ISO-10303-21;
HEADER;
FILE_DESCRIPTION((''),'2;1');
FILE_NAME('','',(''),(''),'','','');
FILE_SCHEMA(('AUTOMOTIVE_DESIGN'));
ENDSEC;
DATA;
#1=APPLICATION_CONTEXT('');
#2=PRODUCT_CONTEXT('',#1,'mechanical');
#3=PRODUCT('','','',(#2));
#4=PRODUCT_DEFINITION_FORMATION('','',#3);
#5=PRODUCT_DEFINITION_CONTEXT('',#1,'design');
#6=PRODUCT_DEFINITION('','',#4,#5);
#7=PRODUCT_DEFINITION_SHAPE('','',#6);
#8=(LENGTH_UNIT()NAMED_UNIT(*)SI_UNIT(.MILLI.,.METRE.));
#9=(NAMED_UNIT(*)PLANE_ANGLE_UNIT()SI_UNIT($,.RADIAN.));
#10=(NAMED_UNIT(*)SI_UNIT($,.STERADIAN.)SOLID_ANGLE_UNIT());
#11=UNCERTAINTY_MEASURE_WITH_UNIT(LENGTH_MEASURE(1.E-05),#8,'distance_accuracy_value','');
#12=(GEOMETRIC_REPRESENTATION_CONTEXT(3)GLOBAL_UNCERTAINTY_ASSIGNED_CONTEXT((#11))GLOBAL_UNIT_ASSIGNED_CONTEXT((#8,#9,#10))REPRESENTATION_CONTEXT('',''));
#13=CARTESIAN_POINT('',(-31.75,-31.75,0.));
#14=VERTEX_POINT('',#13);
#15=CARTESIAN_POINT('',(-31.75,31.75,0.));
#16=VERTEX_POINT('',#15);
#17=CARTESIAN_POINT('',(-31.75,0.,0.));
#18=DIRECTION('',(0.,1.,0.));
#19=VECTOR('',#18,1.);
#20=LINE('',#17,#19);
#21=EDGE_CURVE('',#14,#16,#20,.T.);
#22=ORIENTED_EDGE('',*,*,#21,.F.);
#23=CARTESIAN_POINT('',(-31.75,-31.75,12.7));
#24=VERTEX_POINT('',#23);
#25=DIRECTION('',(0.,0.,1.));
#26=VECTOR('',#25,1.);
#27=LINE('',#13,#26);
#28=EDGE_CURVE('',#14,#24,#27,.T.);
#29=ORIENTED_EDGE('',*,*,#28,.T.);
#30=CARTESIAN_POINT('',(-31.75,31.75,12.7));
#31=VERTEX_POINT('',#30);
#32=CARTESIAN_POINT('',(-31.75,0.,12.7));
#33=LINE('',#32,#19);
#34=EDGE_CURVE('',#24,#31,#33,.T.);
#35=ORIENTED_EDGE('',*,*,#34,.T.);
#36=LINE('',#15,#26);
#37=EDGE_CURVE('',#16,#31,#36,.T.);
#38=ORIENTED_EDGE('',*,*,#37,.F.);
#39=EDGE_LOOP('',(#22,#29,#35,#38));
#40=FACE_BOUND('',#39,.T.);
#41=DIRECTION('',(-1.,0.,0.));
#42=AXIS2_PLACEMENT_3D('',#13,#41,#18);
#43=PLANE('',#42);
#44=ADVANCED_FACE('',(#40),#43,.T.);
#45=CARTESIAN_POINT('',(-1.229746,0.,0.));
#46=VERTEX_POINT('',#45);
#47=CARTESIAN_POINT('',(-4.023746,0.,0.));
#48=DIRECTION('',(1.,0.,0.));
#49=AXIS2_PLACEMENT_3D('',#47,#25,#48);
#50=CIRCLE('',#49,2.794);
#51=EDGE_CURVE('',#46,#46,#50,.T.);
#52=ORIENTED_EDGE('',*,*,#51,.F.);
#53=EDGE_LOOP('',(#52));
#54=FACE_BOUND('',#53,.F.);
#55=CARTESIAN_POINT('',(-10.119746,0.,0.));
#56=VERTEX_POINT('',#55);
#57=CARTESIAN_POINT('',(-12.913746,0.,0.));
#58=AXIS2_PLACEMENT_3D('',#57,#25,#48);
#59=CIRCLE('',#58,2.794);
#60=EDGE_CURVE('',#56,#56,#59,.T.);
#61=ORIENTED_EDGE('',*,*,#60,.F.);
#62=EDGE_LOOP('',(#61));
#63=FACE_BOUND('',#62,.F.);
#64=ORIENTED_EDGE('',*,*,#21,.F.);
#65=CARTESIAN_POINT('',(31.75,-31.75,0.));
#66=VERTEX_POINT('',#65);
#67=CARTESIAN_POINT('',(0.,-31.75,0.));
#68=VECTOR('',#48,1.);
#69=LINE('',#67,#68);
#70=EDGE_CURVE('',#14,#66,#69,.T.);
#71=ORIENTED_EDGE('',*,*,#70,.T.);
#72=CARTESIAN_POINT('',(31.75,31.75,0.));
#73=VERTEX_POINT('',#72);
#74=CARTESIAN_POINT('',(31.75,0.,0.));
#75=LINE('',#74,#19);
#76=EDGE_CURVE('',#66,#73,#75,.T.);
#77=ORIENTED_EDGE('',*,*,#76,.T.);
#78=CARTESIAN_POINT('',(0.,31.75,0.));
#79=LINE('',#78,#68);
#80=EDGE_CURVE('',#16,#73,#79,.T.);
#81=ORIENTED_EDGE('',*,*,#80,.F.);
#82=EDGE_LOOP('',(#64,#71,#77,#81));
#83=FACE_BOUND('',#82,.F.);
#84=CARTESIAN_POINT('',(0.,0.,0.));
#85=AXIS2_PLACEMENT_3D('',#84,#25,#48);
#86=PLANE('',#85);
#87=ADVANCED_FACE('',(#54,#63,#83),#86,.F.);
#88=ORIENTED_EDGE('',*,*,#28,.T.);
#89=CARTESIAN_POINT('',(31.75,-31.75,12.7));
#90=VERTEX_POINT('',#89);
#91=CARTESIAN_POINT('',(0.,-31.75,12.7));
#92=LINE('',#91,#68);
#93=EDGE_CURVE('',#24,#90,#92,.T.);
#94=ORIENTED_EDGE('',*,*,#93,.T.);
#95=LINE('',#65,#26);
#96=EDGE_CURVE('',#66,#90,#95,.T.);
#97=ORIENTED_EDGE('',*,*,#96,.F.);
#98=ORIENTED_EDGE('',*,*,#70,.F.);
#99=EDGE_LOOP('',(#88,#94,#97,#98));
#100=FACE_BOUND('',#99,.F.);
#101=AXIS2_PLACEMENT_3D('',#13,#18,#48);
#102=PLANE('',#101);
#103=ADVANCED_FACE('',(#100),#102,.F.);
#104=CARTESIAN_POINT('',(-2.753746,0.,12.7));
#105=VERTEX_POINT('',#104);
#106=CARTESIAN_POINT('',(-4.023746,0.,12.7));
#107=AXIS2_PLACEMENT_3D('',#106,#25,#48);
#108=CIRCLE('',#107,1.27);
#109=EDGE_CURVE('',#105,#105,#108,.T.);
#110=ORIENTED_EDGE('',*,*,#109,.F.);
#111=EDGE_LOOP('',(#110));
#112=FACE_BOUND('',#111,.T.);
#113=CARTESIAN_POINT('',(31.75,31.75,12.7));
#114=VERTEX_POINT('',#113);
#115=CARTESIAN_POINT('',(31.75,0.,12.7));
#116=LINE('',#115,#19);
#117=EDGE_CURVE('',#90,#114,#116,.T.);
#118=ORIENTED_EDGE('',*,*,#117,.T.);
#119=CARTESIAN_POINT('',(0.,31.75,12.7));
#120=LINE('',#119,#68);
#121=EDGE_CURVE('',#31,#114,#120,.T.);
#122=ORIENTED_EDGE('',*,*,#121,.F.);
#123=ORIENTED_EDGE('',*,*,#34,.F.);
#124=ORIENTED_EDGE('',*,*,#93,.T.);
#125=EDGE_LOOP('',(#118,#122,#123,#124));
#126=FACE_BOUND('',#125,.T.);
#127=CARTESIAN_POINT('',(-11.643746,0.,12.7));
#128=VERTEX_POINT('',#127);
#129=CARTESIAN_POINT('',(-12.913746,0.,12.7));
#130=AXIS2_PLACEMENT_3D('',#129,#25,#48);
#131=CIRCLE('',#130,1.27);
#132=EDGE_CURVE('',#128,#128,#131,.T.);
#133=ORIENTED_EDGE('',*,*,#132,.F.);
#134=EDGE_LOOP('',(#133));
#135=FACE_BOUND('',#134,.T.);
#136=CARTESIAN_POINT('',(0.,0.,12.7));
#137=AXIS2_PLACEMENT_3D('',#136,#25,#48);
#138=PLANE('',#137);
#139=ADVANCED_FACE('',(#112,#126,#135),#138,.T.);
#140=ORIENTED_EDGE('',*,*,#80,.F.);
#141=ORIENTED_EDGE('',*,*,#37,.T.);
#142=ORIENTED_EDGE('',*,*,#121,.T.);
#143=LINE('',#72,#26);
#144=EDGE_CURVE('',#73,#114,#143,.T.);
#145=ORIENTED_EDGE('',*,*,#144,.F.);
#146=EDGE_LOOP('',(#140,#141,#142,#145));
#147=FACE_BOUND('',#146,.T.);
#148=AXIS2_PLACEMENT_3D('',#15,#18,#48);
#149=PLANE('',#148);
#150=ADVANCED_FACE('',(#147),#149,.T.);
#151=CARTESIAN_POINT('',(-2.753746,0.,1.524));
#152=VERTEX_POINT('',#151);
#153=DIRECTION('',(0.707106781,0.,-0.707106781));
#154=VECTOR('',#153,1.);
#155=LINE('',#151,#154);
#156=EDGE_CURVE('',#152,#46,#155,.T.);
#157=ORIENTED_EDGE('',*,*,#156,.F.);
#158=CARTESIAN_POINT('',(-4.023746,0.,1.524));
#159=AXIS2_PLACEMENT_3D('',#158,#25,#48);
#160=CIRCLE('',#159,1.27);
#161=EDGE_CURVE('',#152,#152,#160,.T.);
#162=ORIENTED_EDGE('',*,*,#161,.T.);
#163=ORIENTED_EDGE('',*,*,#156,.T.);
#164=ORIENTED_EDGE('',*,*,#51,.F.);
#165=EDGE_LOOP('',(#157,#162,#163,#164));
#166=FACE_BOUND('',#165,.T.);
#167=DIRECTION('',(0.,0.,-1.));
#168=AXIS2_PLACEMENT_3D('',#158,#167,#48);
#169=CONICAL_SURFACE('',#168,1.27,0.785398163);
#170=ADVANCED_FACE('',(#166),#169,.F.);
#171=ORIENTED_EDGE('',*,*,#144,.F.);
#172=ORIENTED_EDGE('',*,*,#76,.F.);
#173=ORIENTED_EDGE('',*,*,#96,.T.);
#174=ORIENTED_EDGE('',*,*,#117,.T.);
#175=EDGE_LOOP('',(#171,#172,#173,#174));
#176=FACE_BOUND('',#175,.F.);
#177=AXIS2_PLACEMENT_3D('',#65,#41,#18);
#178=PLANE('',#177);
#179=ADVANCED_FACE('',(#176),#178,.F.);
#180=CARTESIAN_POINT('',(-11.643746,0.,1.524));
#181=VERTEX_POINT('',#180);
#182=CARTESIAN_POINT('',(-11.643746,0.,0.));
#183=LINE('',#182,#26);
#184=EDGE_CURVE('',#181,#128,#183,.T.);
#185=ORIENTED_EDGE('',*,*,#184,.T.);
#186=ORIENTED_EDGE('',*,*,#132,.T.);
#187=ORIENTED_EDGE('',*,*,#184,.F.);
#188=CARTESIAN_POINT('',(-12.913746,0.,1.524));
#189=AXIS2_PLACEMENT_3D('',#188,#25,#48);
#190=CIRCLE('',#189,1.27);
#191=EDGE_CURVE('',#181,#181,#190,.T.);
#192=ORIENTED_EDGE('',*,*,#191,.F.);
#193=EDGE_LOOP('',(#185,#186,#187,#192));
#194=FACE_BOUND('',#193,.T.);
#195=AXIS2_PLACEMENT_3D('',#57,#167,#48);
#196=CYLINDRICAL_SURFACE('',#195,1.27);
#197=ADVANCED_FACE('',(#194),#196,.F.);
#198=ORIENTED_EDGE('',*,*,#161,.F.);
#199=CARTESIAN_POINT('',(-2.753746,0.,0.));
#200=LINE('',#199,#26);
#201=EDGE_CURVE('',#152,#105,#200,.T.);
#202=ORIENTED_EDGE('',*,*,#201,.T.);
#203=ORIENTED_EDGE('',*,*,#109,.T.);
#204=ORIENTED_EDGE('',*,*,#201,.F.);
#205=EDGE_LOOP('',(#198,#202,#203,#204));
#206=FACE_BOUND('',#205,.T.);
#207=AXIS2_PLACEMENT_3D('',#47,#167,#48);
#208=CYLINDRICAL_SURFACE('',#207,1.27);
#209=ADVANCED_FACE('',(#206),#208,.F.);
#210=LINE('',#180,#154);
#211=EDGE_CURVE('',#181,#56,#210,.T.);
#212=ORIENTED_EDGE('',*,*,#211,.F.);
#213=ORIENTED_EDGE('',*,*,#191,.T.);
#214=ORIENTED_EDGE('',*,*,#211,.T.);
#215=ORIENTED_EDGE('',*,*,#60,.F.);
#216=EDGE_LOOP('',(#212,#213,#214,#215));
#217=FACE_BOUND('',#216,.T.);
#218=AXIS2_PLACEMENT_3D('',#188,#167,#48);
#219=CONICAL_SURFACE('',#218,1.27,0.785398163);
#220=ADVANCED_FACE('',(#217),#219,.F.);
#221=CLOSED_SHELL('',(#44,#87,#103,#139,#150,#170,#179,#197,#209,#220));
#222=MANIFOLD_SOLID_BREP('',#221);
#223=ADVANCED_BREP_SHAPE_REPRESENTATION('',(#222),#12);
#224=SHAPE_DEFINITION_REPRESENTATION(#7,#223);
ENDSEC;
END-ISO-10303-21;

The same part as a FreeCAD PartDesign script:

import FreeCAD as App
import Part
import Sketcher

V = App.Vector
Q = App.Units.Quantity


def edges_at(feature, points):
    """Names of the edges that pass closest to the given points."""
    edges = feature.Shape.Edges
    near = lambda p: min(range(len(edges)), key=lambda i: edges[i].distToShape(Part.Vertex(*p))[0])
    return sorted({f"Edge{near(p) + 1}" for p in points})

doc = App.newDocument("Part")
body = doc.addObject("PartDesign::Body", "Body")

# Sketch on XY plane
sketch1 = body.newObject("Sketcher::SketchObject", "Sketch")
sketch1.AttachmentSupport = (doc.getObject("XY_Plane"), [""])
sketch1.MapMode = "FlatFace"
sketch1.addGeometry([
    Part.LineSegment(V(-31.75, 31.75, 0), V(-31.75, -31.75, 0)),  # 0
    Part.LineSegment(V(-31.75, -31.75, 0), V(31.75, -31.75, 0)),  # 1
    Part.LineSegment(V(31.75, -31.75, 0), V(31.75, 31.75, 0)),  # 2
    Part.LineSegment(V(31.75, 31.75, 0), V(-31.75, 31.75, 0)),  # 3
    Part.Circle(V(-12.913746, 0, 0), V(0, 0, 1), 1.27),  # 4
    Part.Circle(V(-4.023746, 0, 0), V(0, 0, 1), 1.27),  # 5
], False)
sketch1.addConstraint([
    Sketcher.Constraint("Coincident", 0, 2, 1, 1),
    Sketcher.Constraint("Coincident", 1, 2, 2, 1),
    Sketcher.Constraint("Coincident", 2, 2, 3, 1),
    Sketcher.Constraint("Coincident", 3, 2, 0, 1),
    Sketcher.Constraint("Vertical", 0),
    Sketcher.Constraint("Horizontal", 1),
    Sketcher.Constraint("Vertical", 2),
    Sketcher.Constraint("Horizontal", 3),
    Sketcher.Constraint("Equal", 4, 5),
    Sketcher.Constraint("Symmetric", 0, 2, 2, 2, -1, 1),
    Sketcher.Constraint("PointOnObject", 4, 3, -1),
    Sketcher.Constraint("PointOnObject", 5, 3, -1),
    Sketcher.Constraint("Equal", 3, 0),
    Sketcher.Constraint("Diameter", 4, Q("0.1 in")),
    Sketcher.Constraint("DistanceX", 1, 1, 1, 2, Q("2.5 in")),
    Sketcher.Constraint("DistanceX", 4, 3, 5, 3, Q("0.35 in")),
    Sketcher.Constraint("DistanceX", 4, 3, -1, 1, Q("12.913746 mm")),
])
pad1 = body.newObject("PartDesign::Pad", "Pad")
pad1.Profile = sketch1
pad1.Length = Q("0.5 in")
doc.recompute()

chamfer = body.newObject("PartDesign::Chamfer", "Chamfer")
chamfer.Base = (pad1, edges_at(pad1, [(-14.184, 0, 0), (-5.294, 0, 0)]))
chamfer.Size = Q("0.06 in")

doc.recompute()
